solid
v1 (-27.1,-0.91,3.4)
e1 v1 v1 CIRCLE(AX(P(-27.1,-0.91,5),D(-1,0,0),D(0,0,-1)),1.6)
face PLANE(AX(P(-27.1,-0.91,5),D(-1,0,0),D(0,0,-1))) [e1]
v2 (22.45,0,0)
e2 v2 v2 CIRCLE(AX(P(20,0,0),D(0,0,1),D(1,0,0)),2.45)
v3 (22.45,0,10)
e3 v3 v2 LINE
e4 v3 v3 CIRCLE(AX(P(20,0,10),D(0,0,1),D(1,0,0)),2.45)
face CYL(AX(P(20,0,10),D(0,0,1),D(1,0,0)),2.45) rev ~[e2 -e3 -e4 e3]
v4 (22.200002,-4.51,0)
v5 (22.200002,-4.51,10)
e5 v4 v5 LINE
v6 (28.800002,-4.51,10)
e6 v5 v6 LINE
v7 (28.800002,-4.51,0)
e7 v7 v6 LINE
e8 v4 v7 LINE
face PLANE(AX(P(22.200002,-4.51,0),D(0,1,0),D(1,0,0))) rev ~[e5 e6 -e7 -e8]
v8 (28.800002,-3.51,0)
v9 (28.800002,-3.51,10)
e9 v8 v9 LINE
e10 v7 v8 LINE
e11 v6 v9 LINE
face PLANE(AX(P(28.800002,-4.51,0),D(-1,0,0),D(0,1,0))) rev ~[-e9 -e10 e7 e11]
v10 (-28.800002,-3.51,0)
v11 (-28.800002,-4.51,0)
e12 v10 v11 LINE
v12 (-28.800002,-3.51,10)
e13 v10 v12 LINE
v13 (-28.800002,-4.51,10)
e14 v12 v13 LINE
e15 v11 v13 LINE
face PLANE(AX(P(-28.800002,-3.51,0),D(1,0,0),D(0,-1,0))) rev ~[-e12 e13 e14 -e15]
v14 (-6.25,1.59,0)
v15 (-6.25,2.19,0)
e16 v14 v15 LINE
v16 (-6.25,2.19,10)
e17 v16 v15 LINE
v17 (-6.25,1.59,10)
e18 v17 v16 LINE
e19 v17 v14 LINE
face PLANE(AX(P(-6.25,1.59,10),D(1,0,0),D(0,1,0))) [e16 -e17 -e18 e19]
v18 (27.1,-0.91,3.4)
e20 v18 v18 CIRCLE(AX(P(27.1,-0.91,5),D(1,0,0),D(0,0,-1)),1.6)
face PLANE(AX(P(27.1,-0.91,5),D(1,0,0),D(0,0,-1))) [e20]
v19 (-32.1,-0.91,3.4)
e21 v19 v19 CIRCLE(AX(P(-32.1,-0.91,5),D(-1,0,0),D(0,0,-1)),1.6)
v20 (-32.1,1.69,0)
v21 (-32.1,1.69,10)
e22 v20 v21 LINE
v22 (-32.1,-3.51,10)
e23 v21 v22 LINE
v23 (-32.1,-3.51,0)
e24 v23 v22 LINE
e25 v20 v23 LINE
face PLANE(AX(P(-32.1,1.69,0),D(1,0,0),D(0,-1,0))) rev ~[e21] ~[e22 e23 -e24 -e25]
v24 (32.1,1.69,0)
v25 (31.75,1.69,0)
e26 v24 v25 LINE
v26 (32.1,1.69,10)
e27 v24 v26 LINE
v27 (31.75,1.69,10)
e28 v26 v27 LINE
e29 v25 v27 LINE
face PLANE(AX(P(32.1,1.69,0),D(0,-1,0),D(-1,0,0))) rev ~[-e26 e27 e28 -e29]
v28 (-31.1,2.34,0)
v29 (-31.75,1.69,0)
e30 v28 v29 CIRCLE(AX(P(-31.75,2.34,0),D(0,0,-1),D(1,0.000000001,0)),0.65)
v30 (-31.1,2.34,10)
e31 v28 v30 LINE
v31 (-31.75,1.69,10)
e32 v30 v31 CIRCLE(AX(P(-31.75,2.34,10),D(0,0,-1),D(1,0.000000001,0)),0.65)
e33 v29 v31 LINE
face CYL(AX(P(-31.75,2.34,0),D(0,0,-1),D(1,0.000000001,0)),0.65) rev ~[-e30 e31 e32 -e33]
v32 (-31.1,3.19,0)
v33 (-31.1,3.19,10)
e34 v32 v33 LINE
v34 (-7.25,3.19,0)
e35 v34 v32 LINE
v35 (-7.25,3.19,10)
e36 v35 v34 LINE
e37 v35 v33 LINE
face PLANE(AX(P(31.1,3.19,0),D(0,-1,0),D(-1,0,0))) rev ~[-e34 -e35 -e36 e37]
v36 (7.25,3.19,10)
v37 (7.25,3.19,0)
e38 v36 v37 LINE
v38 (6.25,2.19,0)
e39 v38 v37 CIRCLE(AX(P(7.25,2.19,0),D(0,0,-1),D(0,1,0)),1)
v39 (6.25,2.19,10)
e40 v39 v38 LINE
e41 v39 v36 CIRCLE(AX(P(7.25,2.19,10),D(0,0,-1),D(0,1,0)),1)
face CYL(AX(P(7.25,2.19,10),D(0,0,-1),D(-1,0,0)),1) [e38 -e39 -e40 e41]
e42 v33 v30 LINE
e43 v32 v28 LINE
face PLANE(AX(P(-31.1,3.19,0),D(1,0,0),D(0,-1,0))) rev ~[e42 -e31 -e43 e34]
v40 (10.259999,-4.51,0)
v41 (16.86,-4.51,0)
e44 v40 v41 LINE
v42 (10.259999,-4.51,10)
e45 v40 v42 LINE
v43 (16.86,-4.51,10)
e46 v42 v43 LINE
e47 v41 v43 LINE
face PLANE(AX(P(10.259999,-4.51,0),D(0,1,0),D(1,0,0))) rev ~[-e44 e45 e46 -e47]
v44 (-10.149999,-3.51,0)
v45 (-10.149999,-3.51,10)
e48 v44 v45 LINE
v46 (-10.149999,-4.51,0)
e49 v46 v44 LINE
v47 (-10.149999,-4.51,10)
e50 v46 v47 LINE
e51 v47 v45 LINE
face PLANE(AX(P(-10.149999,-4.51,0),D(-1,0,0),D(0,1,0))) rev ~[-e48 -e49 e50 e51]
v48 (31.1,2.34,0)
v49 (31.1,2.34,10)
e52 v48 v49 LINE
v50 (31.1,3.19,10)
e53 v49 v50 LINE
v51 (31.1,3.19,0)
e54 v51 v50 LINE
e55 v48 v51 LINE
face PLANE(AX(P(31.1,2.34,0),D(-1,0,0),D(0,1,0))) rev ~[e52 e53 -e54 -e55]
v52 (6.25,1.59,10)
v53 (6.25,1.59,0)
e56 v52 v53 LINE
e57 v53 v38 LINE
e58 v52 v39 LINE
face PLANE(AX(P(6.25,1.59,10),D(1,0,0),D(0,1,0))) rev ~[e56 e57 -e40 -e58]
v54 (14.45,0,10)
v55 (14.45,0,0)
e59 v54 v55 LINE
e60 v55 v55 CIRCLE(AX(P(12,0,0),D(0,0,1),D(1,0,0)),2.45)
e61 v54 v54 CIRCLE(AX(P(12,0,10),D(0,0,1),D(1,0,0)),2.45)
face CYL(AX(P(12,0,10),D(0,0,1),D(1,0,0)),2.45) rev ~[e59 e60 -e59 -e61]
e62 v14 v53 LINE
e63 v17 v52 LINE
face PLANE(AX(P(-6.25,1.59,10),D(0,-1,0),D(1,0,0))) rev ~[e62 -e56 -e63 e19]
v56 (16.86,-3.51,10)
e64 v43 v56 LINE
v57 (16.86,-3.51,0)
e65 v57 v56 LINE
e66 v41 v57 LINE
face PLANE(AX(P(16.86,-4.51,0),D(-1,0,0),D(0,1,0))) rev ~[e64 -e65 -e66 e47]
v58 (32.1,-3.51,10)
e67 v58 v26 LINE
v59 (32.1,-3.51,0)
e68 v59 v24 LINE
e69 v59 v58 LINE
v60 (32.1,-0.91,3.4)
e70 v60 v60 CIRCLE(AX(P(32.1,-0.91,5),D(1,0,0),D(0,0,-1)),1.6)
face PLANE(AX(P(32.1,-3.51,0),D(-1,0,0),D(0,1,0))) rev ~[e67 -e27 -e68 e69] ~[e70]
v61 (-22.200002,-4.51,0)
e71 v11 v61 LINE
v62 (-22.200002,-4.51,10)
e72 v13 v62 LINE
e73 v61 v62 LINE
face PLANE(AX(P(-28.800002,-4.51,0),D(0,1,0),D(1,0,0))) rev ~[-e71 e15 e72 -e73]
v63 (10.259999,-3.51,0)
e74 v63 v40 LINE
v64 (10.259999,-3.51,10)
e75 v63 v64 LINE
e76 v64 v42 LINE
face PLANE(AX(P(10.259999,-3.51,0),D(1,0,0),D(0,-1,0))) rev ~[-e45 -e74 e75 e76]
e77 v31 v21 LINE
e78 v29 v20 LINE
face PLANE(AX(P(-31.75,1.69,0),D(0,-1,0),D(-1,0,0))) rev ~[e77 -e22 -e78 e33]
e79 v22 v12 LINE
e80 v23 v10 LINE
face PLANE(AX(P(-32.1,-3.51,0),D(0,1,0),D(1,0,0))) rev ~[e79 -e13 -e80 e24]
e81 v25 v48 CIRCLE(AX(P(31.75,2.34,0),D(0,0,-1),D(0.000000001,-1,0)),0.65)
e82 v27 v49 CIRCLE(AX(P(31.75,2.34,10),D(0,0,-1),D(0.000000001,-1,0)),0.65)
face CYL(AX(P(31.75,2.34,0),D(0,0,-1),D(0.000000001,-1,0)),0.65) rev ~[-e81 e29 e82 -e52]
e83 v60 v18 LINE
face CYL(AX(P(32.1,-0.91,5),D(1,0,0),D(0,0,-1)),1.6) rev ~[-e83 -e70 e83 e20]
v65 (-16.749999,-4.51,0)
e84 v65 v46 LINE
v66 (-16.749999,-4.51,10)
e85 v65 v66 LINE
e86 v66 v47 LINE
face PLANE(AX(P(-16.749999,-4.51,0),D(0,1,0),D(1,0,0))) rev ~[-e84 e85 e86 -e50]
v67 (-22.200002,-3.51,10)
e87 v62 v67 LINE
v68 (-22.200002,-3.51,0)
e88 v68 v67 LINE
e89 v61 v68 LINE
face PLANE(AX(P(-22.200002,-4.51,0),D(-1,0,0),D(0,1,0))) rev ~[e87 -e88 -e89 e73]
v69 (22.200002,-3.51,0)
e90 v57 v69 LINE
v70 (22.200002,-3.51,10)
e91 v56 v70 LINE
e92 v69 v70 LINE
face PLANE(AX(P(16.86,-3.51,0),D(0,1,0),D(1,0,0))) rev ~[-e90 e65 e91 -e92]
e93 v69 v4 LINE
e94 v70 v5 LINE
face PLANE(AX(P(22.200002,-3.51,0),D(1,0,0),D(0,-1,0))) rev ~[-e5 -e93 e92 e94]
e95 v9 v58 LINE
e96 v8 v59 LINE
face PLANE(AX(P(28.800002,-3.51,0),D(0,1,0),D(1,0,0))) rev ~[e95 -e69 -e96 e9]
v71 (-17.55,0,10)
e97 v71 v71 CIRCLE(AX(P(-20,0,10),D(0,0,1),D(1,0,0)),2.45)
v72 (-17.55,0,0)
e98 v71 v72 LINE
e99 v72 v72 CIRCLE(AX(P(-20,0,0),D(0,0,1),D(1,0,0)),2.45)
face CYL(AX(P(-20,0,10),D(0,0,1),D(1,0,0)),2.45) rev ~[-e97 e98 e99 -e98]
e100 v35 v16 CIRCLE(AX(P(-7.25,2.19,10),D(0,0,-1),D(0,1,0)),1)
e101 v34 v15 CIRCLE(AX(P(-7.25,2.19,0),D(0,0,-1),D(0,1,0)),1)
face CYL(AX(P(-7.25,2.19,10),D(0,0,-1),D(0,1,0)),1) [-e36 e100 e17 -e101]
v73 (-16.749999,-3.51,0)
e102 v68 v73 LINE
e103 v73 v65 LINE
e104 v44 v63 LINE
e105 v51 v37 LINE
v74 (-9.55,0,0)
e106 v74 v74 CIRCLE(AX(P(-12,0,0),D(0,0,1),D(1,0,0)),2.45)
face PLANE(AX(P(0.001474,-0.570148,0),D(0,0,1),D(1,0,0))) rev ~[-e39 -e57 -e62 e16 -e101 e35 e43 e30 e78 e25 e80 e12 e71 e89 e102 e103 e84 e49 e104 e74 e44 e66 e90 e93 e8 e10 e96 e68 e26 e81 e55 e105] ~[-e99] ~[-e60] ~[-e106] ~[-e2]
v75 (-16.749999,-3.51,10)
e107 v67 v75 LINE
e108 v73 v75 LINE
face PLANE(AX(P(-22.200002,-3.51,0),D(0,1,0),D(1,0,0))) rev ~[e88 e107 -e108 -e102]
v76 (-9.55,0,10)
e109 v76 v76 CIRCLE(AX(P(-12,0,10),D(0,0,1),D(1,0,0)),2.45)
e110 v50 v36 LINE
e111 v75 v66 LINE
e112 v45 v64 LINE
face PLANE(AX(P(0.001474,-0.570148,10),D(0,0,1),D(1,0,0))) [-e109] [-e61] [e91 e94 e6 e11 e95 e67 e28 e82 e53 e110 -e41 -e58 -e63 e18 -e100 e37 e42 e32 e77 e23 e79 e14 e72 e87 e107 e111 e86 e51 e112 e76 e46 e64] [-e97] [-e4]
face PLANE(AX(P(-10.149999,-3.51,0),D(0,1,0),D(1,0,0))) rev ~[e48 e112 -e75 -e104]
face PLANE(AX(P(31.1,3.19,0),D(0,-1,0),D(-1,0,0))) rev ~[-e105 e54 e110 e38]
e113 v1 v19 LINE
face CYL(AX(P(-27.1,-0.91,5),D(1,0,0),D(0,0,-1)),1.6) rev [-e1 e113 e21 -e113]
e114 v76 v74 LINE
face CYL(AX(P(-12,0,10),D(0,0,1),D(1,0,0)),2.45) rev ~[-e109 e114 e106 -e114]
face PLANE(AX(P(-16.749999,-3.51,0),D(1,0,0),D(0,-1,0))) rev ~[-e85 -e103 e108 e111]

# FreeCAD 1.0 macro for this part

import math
import FreeCAD as App
import Part
import Sketcher

V = App.Vector


def edges_at(feature, points):
    """Names of the edges that pass closest to the given points."""
    edges = feature.Shape.Edges
    near = lambda p: min(range(len(edges)), key=lambda i: edges[i].distToShape(Part.Vertex(*p))[0])
    return sorted({f"Edge{near(p) + 1}" for p in points})

doc = App.newDocument("Part")
body = doc.addObject("PartDesign::Body", "Body")

# Sketch on XY plane
sketch1 = doc.addObject("Sketcher::SketchObject", "Sketch")
body.addObject(sketch1)
sketch1.AttachmentSupport = (doc.XY_Plane, [""])
sketch1.MapMode = "FlatFace"
sketch1.addGeometry([
    Part.LineSegment(V(-31.1, 3.19, 0), V(-31.1, 2.34, 0)),  # 0
    Part.ArcOfCircle(Part.Circle(V(-31.75, 2.34, 0), V(0, 0, 1), 0.65), math.radians(-90), math.radians(0)),  # 1
    Part.LineSegment(V(-31.75, 1.69, 0), V(-32.1, 1.69, 0)),  # 2
    Part.LineSegment(V(-32.1, 1.69, 0), V(-32.1, -3.51, 0)),  # 3
    Part.LineSegment(V(-32.1, -3.51, 0), V(-28.800002, -3.51, 0)),  # 4
    Part.LineSegment(V(-28.800002, -3.51, 0), V(-28.800002, -4.51, 0)),  # 5
    Part.LineSegment(V(-28.800002, -4.51, 0), V(-22.200002, -4.51, 0)),  # 6
    Part.LineSegment(V(-22.200002, -4.51, 0), V(-22.200002, -3.51, 0)),  # 7
    Part.LineSegment(V(-22.200002, -3.51, 0), V(-16.749999, -3.51, 0)),  # 8
    Part.LineSegment(V(-16.749999, -3.51, 0), V(-16.749999, -4.51, 0)),  # 9
    Part.LineSegment(V(-16.749999, -4.51, 0), V(-10.149999, -4.51, 0)),  # 10
    Part.LineSegment(V(-10.149999, -4.51, 0), V(-10.149999, -3.51, 0)),  # 11
    Part.LineSegment(V(-10.149999, -3.51, 0), V(10.259999, -3.51, 0)),  # 12
    Part.LineSegment(V(10.259999, -3.51, 0), V(10.259999, -4.51, 0)),  # 13
    Part.LineSegment(V(10.259999, -4.51, 0), V(16.86, -4.51, 0)),  # 14
    Part.LineSegment(V(16.86, -4.51, 0), V(16.86, -3.51, 0)),  # 15
    Part.LineSegment(V(16.86, -3.51, 0), V(22.200002, -3.51, 0)),  # 16
    Part.LineSegment(V(22.200002, -3.51, 0), V(22.200002, -4.51, 0)),  # 17
    Part.LineSegment(V(22.200002, -4.51, 0), V(28.800002, -4.51, 0)),  # 18
    Part.LineSegment(V(28.800002, -4.51, 0), V(28.800002, -3.51, 0)),  # 19
    Part.LineSegment(V(28.800002, -3.51, 0), V(32.1, -3.51, 0)),  # 20
    Part.LineSegment(V(32.1, -3.51, 0), V(32.1, 1.69, 0)),  # 21
    Part.LineSegment(V(32.1, 1.69, 0), V(31.75, 1.69, 0)),  # 22
    Part.ArcOfCircle(Part.Circle(V(31.75, 2.34, 0), V(0, 0, 1), 0.65), math.radians(180), math.radians(270)),  # 23
    Part.LineSegment(V(31.1, 2.34, 0), V(31.1, 3.19, 0)),  # 24
    Part.LineSegment(V(31.1, 3.19, 0), V(-31.1, 3.19, 0)),  # 25
], False)
sketch1.addConstraint([
    Sketcher.Constraint("Tangent", 0, 2, 1, 2),
    Sketcher.Constraint("Tangent", 1, 1, 2, 1),
    Sketcher.Constraint("Coincident", 2, 2, 3, 1),
    Sketcher.Constraint("Coincident", 3, 2, 4, 1),
    Sketcher.Constraint("Coincident", 4, 2, 5, 1),
    Sketcher.Constraint("Coincident", 5, 2, 6, 1),
    Sketcher.Constraint("Coincident", 6, 2, 7, 1),
    Sketcher.Constraint("Coincident", 7, 2, 8, 1),
    Sketcher.Constraint("Coincident", 8, 2, 9, 1),
    Sketcher.Constraint("Coincident", 9, 2, 10, 1),
    Sketcher.Constraint("Coincident", 10, 2, 11, 1),
    Sketcher.Constraint("Coincident", 11, 2, 12, 1),
    Sketcher.Constraint("Coincident", 12, 2, 13, 1),
    Sketcher.Constraint("Coincident", 13, 2, 14, 1),
    Sketcher.Constraint("Coincident", 14, 2, 15, 1),
    Sketcher.Constraint("Coincident", 15, 2, 16, 1),
    Sketcher.Constraint("Coincident", 16, 2, 17, 1),
    Sketcher.Constraint("Coincident", 17, 2, 18, 1),
    Sketcher.Constraint("Coincident", 18, 2, 19, 1),
    Sketcher.Constraint("Coincident", 19, 2, 20, 1),
    Sketcher.Constraint("Coincident", 20, 2, 21, 1),
    Sketcher.Constraint("Coincident", 21, 2, 22, 1),
    Sketcher.Constraint("Tangent", 22, 2, 23, 2),
    Sketcher.Constraint("Tangent", 23, 1, 24, 1),
    Sketcher.Constraint("Coincident", 24, 2, 25, 1),
    Sketcher.Constraint("Coincident", 25, 2, 0, 1),
    Sketcher.Constraint("Vertical", 0),
    Sketcher.Constraint("Horizontal", 2),
    Sketcher.Constraint("Vertical", 3),
    Sketcher.Constraint("Horizontal", 4),
    Sketcher.Constraint("Vertical", 5),
    Sketcher.Constraint("Horizontal", 6),
    Sketcher.Constraint("Vertical", 7),
    Sketcher.Constraint("Horizontal", 8),
    Sketcher.Constraint("Vertical", 9),
    Sketcher.Constraint("Horizontal", 10),
    Sketcher.Constraint("Vertical", 11),
    Sketcher.Constraint("Horizontal", 12),
    Sketcher.Constraint("Vertical", 13),
    Sketcher.Constraint("Horizontal", 14),
    Sketcher.Constraint("Vertical", 15),
    Sketcher.Constraint("Horizontal", 16),
    Sketcher.Constraint("Vertical", 17),
    Sketcher.Constraint("Horizontal", 18),
    Sketcher.Constraint("Vertical", 19),
    Sketcher.Constraint("Horizontal", 20),
    Sketcher.Constraint("Vertical", 21),
    Sketcher.Constraint("Horizontal", 22),
    Sketcher.Constraint("Vertical", 24),
    Sketcher.Constraint("Horizontal", 25),
    Sketcher.Constraint("Equal", 1, 23),
    Sketcher.Constraint("Symmetric", 1, 3, 23, 3, -2),
    Sketcher.Constraint("Symmetric", 7, 2, 16, 2, -2),
    Sketcher.Constraint("Symmetric", 5, 2, 18, 2, -2),
    Sketcher.Constraint("Symmetric", 3, 2, 20, 2, -2),
    Sketcher.Constraint("Horizontal", 4, 2, 7, 2),
    Sketcher.Constraint("Horizontal", 6, 2, 9, 2),
    Sketcher.Constraint("Horizontal", 8, 2, 11, 2),
    Sketcher.Constraint("Horizontal", 10, 2, 13, 2),
    Sketcher.Constraint("Equal", 6, 10),
    Sketcher.Constraint("Equal", 10, 14),
    Sketcher.Constraint("DistanceY", 5, 2, 5, 1, 1.0),
    Sketcher.Constraint("Radius", 1, 0.65),
    Sketcher.Constraint("DistanceX", 6, 1, 6, 2, 6.600001),
    Sketcher.Constraint("DistanceX", 25, 2, 25, 1, 62.2),
    Sketcher.Constraint("DistanceY", 3, 2, 3, 1, 5.2),
    Sketcher.Constraint("DistanceX", 2, 2, 0, 2, 1.0),
    Sketcher.Constraint("DistanceX", 16, 1, 16, 2, 5.340002),
    Sketcher.Constraint("DistanceY", 0, 2, 0, 1, 0.85),
    Sketcher.Constraint("DistanceX", 6, 2, -1, 1, 22.200002),
    Sketcher.Constraint("DistanceY", -1, 1, 1, 3, 2.34),
    Sketcher.Constraint("DistanceX", 8, 2, -1, 1, 16.749999),
])
pad1 = doc.addObject("PartDesign::Pad", "Pad")
body.addObject(pad1)
pad1.Profile = sketch1
pad1.Length = 10

# Sketch on XY plane
sketch2 = doc.addObject("Sketcher::SketchObject", "Sketch001")
body.addObject(sketch2)
sketch2.AttachmentSupport = (doc.XY_Plane, [""])
sketch2.MapMode = "FlatFace"
sketch2.AttachmentOffset = App.Placement(V(0, 0, 10), App.Rotation())
sketch2.addGeometry([
    Part.Circle(V(-20, 0, 0), V(0, 0, 1), 2.45),
    Part.Circle(V(-12, 0, 0), V(0, 0, 1), 2.45),
    Part.Circle(V(12, 0, 0), V(0, 0, 1), 2.45),
    Part.Circle(V(20, 0, 0), V(0, 0, 1), 2.45),
], False)
sketch2.addConstraint([
    Sketcher.Constraint("Equal", 0, 1),
    Sketcher.Constraint("Equal", 1, 2),
    Sketcher.Constraint("Equal", 2, 3),
    Sketcher.Constraint("Symmetric", 1, 3, 2, 3, -1, 1),
    Sketcher.Constraint("Symmetric", 0, 3, 3, 3, -1, 1),
    Sketcher.Constraint("PointOnObject", 0, 3, -1),
    Sketcher.Constraint("PointOnObject", 1, 3, -1),
    Sketcher.Constraint("Diameter", 0, 4.9),
    Sketcher.Constraint("DistanceX", 0, 3, -1, 1, 20.0),
    Sketcher.Constraint("DistanceX", 1, 3, -1, 1, 12.0),
])
pocket1 = doc.addObject("PartDesign::Pocket", "Pocket")
body.addObject(pocket1)
pocket1.Profile = sketch2
pocket1.Length = 11

# Sketch on YZ plane
sketch3 = doc.addObject("Sketcher::SketchObject", "Sketch002")
body.addObject(sketch3)
sketch3.AttachmentSupport = (doc.YZ_Plane, [""])
sketch3.MapMode = "FlatFace"
sketch3.AttachmentOffset = App.Placement(V(0, 0, 32.1), App.Rotation())
sketch3.addGeometry(Part.Circle(V(-0.91, 5, 0), V(0, 0, 1), 1.6), False)
sketch3.addConstraint([
    Sketcher.Constraint("Diameter", 0, 3.2),
    Sketcher.Constraint("DistanceY", -1, 1, 0, 3, 5.0),
    Sketcher.Constraint("DistanceX", 0, 3, -1, 1, 0.91),
])
pocket2 = doc.addObject("PartDesign::Pocket", "Pocket001")
body.addObject(pocket2)
pocket2.Profile = sketch3
pocket2.Length = 5

# Sketch on YZ plane
sketch4 = doc.addObject("Sketcher::SketchObject", "Sketch003")
body.addObject(sketch4)
sketch4.AttachmentSupport = (doc.YZ_Plane, [""])
sketch4.MapMode = "FlatFace"
sketch4.AttachmentOffset = App.Placement(V(0, 0, -27.1), App.Rotation())
sketch4.addGeometry(Part.Circle(V(-0.91, 5, 0), V(0, 0, 1), 1.6), False)
sketch4.addConstraint([
    Sketcher.Constraint("Diameter", 0, 3.2),
    Sketcher.Constraint("DistanceY", -1, 1, 0, 3, 5.0),
    Sketcher.Constraint("DistanceX", 0, 3, -1, 1, 0.91),
])
pocket3 = doc.addObject("PartDesign::Pocket", "Pocket002")
body.addObject(pocket3)
pocket3.Profile = sketch4
pocket3.Length = 5

# Sketch on XY plane
sketch5 = doc.addObject("Sketcher::SketchObject", "Sketch004")
body.addObject(sketch5)
sketch5.AttachmentSupport = (doc.XY_Plane, [""])
sketch5.MapMode = "FlatFace"
sketch5.AttachmentOffset = App.Placement(V(0, 0, 10), App.Rotation())
sketch5.addGeometry([
    Part.LineSegment(V(-6.25, 3.19, 0), V(-6.25, 1.59, 0)),
    Part.LineSegment(V(-6.25, 1.59, 0), V(6.25, 1.59, 0)),
    Part.LineSegment(V(6.25, 1.59, 0), V(6.25, 3.19, 0)),
    Part.LineSegment(V(6.25, 3.19, 0), V(-6.25, 3.19, 0)),
], False)
sketch5.addConstraint([
    Sketcher.Constraint("Coincident", 0, 2, 1, 1),
    Sketcher.Constraint("Coincident", 1, 2, 2, 1),
    Sketcher.Constraint("Coincident", 2, 2, 3, 1),
    Sketcher.Constraint("Coincident", 3, 2, 0, 1),
    Sketcher.Constraint("Vertical", 0),
    Sketcher.Constraint("Horizontal", 1),
    Sketcher.Constraint("Vertical", 2),
    Sketcher.Constraint("Horizontal", 3),
    Sketcher.Constraint("DistanceX", 1, 1, 1, 2, 12.5),
    Sketcher.Constraint("DistanceY", 0, 2, 0, 1, 1.6),
    Sketcher.Constraint("DistanceX", 0, 2, -1, 1, 6.25),
    Sketcher.Constraint("DistanceY", -1, 1, 0, 2, 1.59),
])
pocket4 = doc.addObject("PartDesign::Pocket", "Pocket003")
body.addObject(pocket4)
pocket4.Profile = sketch5
pocket4.Length = 11
doc.recompute()

fillet = doc.addObject("PartDesign::Fillet", "Fillet")
body.addObject(fillet)
fillet.Base = (pocket4, edges_at(pocket4, [(6.25, 3.19, 5), (-6.25, 3.19, 5)]))
fillet.Radius = 1

doc.recompute()
